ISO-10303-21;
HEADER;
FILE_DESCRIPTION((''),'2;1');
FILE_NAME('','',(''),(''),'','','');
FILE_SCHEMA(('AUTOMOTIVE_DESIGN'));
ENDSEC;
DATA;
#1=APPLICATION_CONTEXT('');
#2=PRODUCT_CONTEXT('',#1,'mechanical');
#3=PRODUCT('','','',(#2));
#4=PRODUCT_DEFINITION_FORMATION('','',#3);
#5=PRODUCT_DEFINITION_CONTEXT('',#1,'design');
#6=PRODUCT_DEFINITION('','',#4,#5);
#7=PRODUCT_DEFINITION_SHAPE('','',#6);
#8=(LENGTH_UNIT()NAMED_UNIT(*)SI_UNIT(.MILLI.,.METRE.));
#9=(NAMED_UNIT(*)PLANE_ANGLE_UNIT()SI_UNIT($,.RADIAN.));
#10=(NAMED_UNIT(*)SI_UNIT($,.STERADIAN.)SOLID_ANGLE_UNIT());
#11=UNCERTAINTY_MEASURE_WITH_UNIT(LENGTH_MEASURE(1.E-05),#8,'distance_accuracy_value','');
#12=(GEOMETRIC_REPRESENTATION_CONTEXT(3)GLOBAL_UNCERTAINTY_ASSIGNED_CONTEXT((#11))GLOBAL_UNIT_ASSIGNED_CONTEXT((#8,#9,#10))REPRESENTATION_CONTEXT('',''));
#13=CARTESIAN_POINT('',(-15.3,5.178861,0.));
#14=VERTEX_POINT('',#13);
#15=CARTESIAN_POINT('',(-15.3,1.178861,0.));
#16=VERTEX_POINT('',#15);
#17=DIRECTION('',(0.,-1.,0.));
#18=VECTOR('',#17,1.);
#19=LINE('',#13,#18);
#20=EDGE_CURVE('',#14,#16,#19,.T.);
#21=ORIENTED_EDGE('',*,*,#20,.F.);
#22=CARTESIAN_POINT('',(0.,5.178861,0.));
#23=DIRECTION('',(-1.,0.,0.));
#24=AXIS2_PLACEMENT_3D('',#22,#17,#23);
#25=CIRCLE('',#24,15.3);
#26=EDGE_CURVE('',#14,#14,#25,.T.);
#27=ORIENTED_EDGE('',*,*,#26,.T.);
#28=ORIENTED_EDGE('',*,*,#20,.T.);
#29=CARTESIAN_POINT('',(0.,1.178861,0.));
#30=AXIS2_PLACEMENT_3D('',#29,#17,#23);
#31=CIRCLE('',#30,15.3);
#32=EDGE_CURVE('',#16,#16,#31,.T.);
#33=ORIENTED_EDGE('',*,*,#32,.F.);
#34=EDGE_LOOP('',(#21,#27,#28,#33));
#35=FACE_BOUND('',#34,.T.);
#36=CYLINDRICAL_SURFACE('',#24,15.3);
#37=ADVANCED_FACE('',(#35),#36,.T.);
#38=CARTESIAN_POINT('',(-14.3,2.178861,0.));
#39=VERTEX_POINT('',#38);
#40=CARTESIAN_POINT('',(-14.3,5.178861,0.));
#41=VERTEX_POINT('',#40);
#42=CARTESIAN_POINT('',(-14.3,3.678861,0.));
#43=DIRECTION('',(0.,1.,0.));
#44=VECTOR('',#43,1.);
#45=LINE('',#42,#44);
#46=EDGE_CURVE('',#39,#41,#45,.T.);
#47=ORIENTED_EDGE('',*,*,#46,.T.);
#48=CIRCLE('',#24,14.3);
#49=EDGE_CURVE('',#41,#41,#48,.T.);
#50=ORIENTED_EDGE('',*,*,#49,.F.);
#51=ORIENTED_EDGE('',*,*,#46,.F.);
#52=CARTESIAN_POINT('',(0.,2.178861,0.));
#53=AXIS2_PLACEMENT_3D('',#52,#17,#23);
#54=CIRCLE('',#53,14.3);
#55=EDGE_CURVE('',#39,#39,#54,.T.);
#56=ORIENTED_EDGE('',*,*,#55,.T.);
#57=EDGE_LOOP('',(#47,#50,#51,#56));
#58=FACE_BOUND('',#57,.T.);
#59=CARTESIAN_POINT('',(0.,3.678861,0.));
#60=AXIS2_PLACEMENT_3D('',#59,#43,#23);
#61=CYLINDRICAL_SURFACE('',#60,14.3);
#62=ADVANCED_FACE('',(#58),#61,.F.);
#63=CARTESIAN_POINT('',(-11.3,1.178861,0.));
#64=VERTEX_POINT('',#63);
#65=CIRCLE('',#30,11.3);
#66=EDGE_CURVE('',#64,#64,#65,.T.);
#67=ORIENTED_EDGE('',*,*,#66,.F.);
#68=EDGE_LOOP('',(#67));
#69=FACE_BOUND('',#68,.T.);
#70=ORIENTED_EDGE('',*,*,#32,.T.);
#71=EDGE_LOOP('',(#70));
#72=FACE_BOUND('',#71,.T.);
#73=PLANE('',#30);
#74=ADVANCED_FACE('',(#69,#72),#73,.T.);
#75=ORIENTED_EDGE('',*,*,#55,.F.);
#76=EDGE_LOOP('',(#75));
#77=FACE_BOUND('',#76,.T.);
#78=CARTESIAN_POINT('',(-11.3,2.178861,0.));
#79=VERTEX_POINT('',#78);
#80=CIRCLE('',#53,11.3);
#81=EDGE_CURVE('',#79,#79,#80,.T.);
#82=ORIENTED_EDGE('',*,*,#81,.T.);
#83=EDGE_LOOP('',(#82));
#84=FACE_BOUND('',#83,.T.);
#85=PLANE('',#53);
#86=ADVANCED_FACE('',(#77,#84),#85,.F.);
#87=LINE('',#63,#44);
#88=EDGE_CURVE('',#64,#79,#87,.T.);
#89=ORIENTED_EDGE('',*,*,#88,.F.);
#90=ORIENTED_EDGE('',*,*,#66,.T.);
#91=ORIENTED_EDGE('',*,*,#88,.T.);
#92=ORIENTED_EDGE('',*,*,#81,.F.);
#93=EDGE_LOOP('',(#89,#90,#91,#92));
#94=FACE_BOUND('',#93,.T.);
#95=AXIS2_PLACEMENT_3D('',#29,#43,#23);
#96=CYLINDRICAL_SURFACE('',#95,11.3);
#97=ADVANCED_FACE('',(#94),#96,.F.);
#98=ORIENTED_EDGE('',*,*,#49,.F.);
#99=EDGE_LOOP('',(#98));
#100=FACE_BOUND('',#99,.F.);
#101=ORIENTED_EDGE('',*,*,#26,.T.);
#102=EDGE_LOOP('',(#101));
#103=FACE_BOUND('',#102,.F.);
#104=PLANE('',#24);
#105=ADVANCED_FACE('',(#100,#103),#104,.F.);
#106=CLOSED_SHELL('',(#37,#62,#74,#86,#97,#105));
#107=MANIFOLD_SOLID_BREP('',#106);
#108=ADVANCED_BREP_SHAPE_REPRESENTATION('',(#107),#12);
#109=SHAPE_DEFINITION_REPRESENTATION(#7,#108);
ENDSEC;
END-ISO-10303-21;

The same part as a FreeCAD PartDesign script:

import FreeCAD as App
import Part
import Sketcher
from FreeCAD import Vector

doc = App.newDocument("Part")
body = doc.addObject("PartDesign::Body", "Body")

sketch1 = body.newObject("Sketcher::SketchObject", "Sketch")
sketch1.AttachmentSupport = (doc.getObject("XY_Plane"), [""])
sketch1.MapMode = "FlatFace"
sketch1.addGeometry(Part.LineSegment(Vector(-15.3, 5.2, 0), Vector(-15.3, 1.2, 0)), False)
sketch1.addGeometry(Part.LineSegment(Vector(-15.3, 1.2, 0), Vector(-11.3, 1.2, 0)), False)
sketch1.addGeometry(Part.LineSegment(Vector(-11.3, 1.2, 0), Vector(-11.3, 2.2, 0)), False)
sketch1.addGeometry(Part.LineSegment(Vector(-11.3, 2.2, 0), Vector(-14.3, 2.2, 0)), False)
sketch1.addGeometry(Part.LineSegment(Vector(-14.3, 2.2, 0), Vector(-14.3, 5.2, 0)), False)
sketch1.addGeometry(Part.LineSegment(Vector(-14.3, 5.2, 0), Vector(-15.3, 5.2, 0)), False)
sketch1.addConstraint(Sketcher.Constraint("Coincident", 0, 2, 1, 1))
sketch1.addConstraint(Sketcher.Constraint("Coincident", 1, 2, 2, 1))
sketch1.addConstraint(Sketcher.Constraint("Coincident", 2, 2, 3, 1))
sketch1.addConstraint(Sketcher.Constraint("Coincident", 3, 2, 4, 1))
sketch1.addConstraint(Sketcher.Constraint("Coincident", 4, 2, 5, 1))
sketch1.addConstraint(Sketcher.Constraint("Coincident", 5, 2, 0, 1))
sketch1.addConstraint(Sketcher.Constraint("Vertical", 0))
sketch1.addConstraint(Sketcher.Constraint("Horizontal", 1))
sketch1.addConstraint(Sketcher.Constraint("Vertical", 2))
sketch1.addConstraint(Sketcher.Constraint("Horizontal", 3))
sketch1.addConstraint(Sketcher.Constraint("Vertical", 4))
sketch1.addConstraint(Sketcher.Constraint("Horizontal", 5))
sketch1.addConstraint(Sketcher.Constraint("Equal", 1, 0))
sketch1.addConstraint(Sketcher.Constraint("Equal", 5, 2))
sketch1.addConstraint(Sketcher.Constraint("DistanceX", 1, 1, 1, 2, 4.0))
sketch1.addConstraint(Sketcher.Constraint("DistanceX", 3, 2, 3, 1, 3.0))
sketch1.addConstraint(Sketcher.Constraint("DistanceX", 0, 2, -1, 1, 15.3))
sketch1.addConstraint(Sketcher.Constraint("DistanceY", -1, 1, 0, 2, 1.178861))
revolution = body.newObject("PartDesign::Revolution", "Revolution")
revolution.Profile = sketch1
revolution.ReferenceAxis = (sketch1, ["V_Axis"])
revolution.Angle = 360

doc.recompute()
